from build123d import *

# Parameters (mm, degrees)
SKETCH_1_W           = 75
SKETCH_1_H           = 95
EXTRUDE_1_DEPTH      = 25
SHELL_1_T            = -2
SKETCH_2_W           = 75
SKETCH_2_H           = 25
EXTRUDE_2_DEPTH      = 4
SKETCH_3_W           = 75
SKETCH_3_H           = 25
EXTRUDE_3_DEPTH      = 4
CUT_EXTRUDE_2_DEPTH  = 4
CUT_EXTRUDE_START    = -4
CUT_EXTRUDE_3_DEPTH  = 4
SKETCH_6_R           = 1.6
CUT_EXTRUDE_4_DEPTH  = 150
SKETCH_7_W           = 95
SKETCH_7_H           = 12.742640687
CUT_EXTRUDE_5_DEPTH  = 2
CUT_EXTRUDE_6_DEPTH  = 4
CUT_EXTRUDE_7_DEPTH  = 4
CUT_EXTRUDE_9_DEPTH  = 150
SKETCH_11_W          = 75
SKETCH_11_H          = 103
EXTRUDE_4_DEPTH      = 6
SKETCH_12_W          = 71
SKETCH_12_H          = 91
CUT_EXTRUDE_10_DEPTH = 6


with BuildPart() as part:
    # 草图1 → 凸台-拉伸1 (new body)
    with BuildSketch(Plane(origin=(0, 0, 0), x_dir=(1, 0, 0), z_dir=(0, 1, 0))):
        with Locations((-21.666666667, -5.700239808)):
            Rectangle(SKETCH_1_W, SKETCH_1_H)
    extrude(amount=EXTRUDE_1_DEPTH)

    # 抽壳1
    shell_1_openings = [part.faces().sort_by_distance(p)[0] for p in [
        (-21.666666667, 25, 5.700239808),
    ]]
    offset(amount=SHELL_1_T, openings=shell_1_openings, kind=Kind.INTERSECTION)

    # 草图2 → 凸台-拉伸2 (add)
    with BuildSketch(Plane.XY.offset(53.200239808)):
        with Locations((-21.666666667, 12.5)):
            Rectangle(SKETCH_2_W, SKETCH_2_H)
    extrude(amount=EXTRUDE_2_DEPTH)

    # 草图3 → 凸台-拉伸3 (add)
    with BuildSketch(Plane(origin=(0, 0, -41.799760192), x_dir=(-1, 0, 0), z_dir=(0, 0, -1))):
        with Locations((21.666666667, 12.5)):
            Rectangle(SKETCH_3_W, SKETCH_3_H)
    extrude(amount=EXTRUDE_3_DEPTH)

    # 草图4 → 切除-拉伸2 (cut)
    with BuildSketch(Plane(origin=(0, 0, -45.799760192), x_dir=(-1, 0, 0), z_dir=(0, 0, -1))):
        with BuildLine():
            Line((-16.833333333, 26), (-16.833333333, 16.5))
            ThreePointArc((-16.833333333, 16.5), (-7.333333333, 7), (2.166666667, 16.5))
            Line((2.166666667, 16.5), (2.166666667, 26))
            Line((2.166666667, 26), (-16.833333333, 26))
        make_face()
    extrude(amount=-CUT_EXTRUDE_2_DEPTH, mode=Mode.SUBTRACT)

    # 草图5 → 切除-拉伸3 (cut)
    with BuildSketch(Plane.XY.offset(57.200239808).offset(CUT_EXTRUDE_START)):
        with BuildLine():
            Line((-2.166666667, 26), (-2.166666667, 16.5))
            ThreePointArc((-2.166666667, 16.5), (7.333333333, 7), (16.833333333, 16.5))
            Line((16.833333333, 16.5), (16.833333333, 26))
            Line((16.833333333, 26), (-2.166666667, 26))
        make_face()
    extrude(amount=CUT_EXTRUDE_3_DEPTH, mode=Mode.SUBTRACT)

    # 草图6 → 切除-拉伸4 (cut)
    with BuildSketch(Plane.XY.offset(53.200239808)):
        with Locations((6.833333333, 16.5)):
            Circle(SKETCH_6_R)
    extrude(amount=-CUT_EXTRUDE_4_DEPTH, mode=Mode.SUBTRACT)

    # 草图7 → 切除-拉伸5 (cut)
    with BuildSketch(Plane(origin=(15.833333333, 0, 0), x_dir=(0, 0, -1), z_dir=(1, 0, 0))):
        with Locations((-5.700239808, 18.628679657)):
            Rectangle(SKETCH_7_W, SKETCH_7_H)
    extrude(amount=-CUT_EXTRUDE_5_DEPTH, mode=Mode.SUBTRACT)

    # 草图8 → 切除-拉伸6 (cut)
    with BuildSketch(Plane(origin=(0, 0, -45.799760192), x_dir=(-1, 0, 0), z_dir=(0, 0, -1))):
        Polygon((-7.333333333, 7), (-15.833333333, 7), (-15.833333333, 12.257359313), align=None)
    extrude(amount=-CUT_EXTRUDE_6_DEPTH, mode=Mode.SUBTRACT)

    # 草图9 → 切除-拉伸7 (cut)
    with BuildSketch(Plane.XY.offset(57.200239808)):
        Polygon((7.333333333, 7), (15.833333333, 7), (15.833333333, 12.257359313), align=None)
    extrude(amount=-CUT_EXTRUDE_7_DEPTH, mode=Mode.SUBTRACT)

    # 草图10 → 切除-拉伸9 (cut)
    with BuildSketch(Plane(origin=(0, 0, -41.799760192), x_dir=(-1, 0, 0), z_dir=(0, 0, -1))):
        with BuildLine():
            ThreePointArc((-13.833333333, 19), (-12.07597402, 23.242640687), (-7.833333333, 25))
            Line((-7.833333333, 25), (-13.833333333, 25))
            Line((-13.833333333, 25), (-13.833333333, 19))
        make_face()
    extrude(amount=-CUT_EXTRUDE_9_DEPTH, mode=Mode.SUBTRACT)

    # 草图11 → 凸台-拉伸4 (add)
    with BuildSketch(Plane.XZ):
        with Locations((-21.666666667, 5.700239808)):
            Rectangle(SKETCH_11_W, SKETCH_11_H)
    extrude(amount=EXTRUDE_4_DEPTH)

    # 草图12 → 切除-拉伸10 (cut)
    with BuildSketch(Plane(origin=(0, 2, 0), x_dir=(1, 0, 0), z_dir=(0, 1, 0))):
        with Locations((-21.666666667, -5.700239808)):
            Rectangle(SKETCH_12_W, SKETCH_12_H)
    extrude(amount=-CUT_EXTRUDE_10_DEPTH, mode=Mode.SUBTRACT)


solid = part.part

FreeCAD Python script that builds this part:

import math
import FreeCAD as App
import Part
import Sketcher


def faces_at(feature, points):
    """Names of the faces that lie closest to the given points."""
    faces = feature.Shape.Faces
    near = lambda p: min(range(len(faces)), key=lambda i: faces[i].distToShape(Part.Vertex(*p))[0])
    return sorted({f"Face{near(p) + 1}" for p in points})


def add_polygon(sketch, points):
    """Adds a closed chain of lines whose ends are joined by coincident constraints."""
    first, n = sketch.GeometryCount, len(points)
    for a, b in zip(points, points[1:] + points[:1]):
        sketch.addGeometry(Part.LineSegment(App.Vector(*a, 0), App.Vector(*b, 0)), False)
    for i in range(n):
        sketch.addConstraint(Sketcher.Constraint("Coincident", first + i, 2, first + (i + 1) % n, 1))

doc = App.newDocument("Part")
body = doc.addObject("PartDesign::Body", "Body")

sketch1 = body.newObject("Sketcher::SketchObject", "Sketch")
sketch1.AttachmentSupport = (doc.getObject("XZ_Plane"), [""])
sketch1.MapMode = "FlatFace"
add_polygon(sketch1, [(-59, -42), (-59, 53), (16, 53), (16, -42)])
sketch1.addConstraint([
    Sketcher.Constraint("Vertical", 0),
    Sketcher.Constraint("Horizontal", 1),
    Sketcher.Constraint("Vertical", 2),
    Sketcher.Constraint("Horizontal", 3),
    Sketcher.Constraint("DistanceX", 1, 1, 1, 2, 75.0),
    Sketcher.Constraint("DistanceY", 0, 1, 0, 2, 95.0),
    Sketcher.Constraint("DistanceY", -1, 1, 0, 2, 53.20024),
    Sketcher.Constraint("DistanceX", 0, 2, -1, 1, 59.166667),
])
pad1 = body.newObject("PartDesign::Pad", "Pad")
pad1.Profile = sketch1
pad1.Length = 25
pad1.Reversed = True
doc.recompute()

thickness = body.newObject("PartDesign::Thickness", "Thickness")
thickness.Base = (pad1, faces_at(pad1, [(-21.667, 25, 5.7)]))
thickness.Value = 2
thickness.Reversed = True
thickness.Join = "Intersection"

sketch2 = body.newObject("Sketcher::SketchObject", "Sketch001")
sketch2.AttachmentSupport = (doc.getObject("XY_Plane"), [""])
sketch2.MapMode = "FlatFace"
sketch2.AttachmentOffset = App.Placement(App.Vector(0, 0, 53.20024), App.Rotation())
add_polygon(sketch2, [(-59, 25), (-59, 0), (16, 0), (16, 25)])
sketch2.addConstraint([
    Sketcher.Constraint("Vertical", 0),
    Sketcher.Constraint("Horizontal", 1),
    Sketcher.Constraint("Vertical", 2),
    Sketcher.Constraint("Horizontal", 3),
    Sketcher.Constraint("PointOnObject", 0, 2, -1),
    Sketcher.Constraint("DistanceX", 1, 1, 1, 2, 75.0),
    Sketcher.Constraint("DistanceY", 0, 2, 0, 1, 25.0),
    Sketcher.Constraint("DistanceX", 0, 2, -1, 1, 59.166667),
])
pad2 = body.newObject("PartDesign::Pad", "Pad001")
pad2.Profile = sketch2
pad2.Length = 4

sketch3 = body.newObject("Sketcher::SketchObject", "Sketch002")
sketch3.AttachmentSupport = (doc.getObject("XY_Plane"), [""])
sketch3.MapMode = "FlatFace"
sketch3.AttachmentOffset = App.Placement(App.Vector(0, 0, -41.79976), App.Rotation())
add_polygon(sketch3, [(16, 25), (16, 0), (-59, 0), (-59, 25)])
sketch3.addConstraint([
    Sketcher.Constraint("Vertical", 0),
    Sketcher.Constraint("Horizontal", 1),
    Sketcher.Constraint("Vertical", 2),
    Sketcher.Constraint("Horizontal", 3),
    Sketcher.Constraint("PointOnObject", 0, 2, -1),
    Sketcher.Constraint("DistanceX", 1, 2, 1, 1, 75.0),
    Sketcher.Constraint("DistanceY", 0, 2, 0, 1, 25.0),
    Sketcher.Constraint("DistanceX", -1, 1, 0, 2, 15.833333),
])
pad3 = body.newObject("PartDesign::Pad", "Pad002")
pad3.Profile = sketch3
pad3.Length = 4
pad3.Reversed = True

sketch4 = body.newObject("Sketcher::SketchObject", "Sketch003")
sketch4.AttachmentSupport = (doc.getObject("XY_Plane"), [""])
sketch4.MapMode = "FlatFace"
sketch4.AttachmentOffset = App.Placement(App.Vector(0, 0, -45.79976), App.Rotation())
sketch4.addGeometry([
    Part.LineSegment(App.Vector(17, 26, 0), App.Vector(17, 16, 0)),
    Part.ArcOfCircle(Part.Circle(App.Vector(7, 16, 0), App.Vector(0, 0, 1), 10), math.radians(180), math.radians(360)),
    Part.LineSegment(App.Vector(-2, 16, 0), App.Vector(-2, 26, 0)),
    Part.LineSegment(App.Vector(-2, 26, 0), App.Vector(17, 26, 0)),
], False)
sketch4.addConstraint([
    Sketcher.Constraint("Tangent", 0, 2, 1, 2),
    Sketcher.Constraint("Tangent", 1, 1, 2, 1),
    Sketcher.Constraint("Coincident", 2, 2, 3, 1),
    Sketcher.Constraint("Coincident", 3, 2, 0, 1),
    Sketcher.Constraint("Vertical", 0),
    Sketcher.Constraint("Vertical", 2),
    Sketcher.Constraint("Horizontal", 3),
    Sketcher.Constraint("Radius", 1, 9.5),
    Sketcher.Constraint("DistanceY", 0, 2, 0, 1, 9.5),
    Sketcher.Constraint("DistanceY", -1, 1, 2, 2, 26.0),
    Sketcher.Constraint("DistanceX", -1, 1, 1, 3, 7.333333),
])
pocket1 = body.newObject("PartDesign::Pocket", "Pocket")
pocket1.Profile = sketch4
pocket1.Length = 4
pocket1.Reversed = True

sketch5 = body.newObject("Sketcher::SketchObject", "Sketch004")
sketch5.AttachmentSupport = (doc.getObject("XY_Plane"), [""])
sketch5.MapMode = "FlatFace"
sketch5.AttachmentOffset = App.Placement(App.Vector(0, 0, 53.20024), App.Rotation())
sketch5.addGeometry([
    Part.LineSegment(App.Vector(-2, 26, 0), App.Vector(-2, 16, 0)),
    Part.ArcOfCircle(Part.Circle(App.Vector(7, 16, 0), App.Vector(0, 0, 1), 10), math.radians(180), math.radians(360)),
    Part.LineSegment(App.Vector(17, 16, 0), App.Vector(17, 26, 0)),
    Part.LineSegment(App.Vector(17, 26, 0), App.Vector(-2, 26, 0)),
], False)
sketch5.addConstraint([
    Sketcher.Constraint("Tangent", 0, 2, 1, 1),
    Sketcher.Constraint("Tangent", 1, 2, 2, 1),
    Sketcher.Constraint("Coincident", 2, 2, 3, 1),
    Sketcher.Constraint("Coincident", 3, 2, 0, 1),
    Sketcher.Constraint("Vertical", 0),
    Sketcher.Constraint("Vertical", 2),
    Sketcher.Constraint("Horizontal", 3),
    Sketcher.Constraint("Radius", 1, 9.5),
    Sketcher.Constraint("DistanceY", 0, 2, 0, 1, 9.5),
    Sketcher.Constraint("DistanceY", -1, 1, 2, 2, 26.0),
    Sketcher.Constraint("DistanceX", -1, 1, 1, 3, 7.333333),
])
pocket2 = body.newObject("PartDesign::Pocket", "Pocket001")
pocket2.Profile = sketch5
pocket2.Length = 4
pocket2.Reversed = True

sketch6 = body.newObject("Sketcher::SketchObject", "Sketch005")
sketch6.AttachmentSupport = (doc.getObject("XY_Plane"), [""])
sketch6.MapMode = "FlatFace"
sketch6.AttachmentOffset = App.Placement(App.Vector(0, 0, 53.20024), App.Rotation())
sketch6.addGeometry(Part.Circle(App.Vector(6.8, 16.5, 0), App.Vector(0, 0, 1), 1.6), False)
sketch6.addConstraint([
    Sketcher.Constraint("Diameter", 0, 3.2),
    Sketcher.Constraint("DistanceY", -1, 1, 0, 3, 16.5),
    Sketcher.Constraint("DistanceX", -1, 1, 0, 3, 6.833333),
])
pocket3 = body.newObject("PartDesign::Pocket", "Pocket002")
pocket3.Profile = sketch6
pocket3.Length = 150

sketch7 = body.newObject("Sketcher::SketchObject", "Sketch006")
sketch7.AttachmentSupport = (doc.getObject("YZ_Plane"), [""])
sketch7.MapMode = "FlatFace"
sketch7.AttachmentOffset = App.Placement(App.Vector(0, 0, 15.833333), App.Rotation())
add_polygon(sketch7, [(25, 53), (12, 53), (12, -42), (25, -42)])
sketch7.addConstraint([
    Sketcher.Constraint("Horizontal", 0),
    Sketcher.Constraint("Vertical", 1),
    Sketcher.Constraint("Horizontal", 2),
    Sketcher.Constraint("Vertical", 3),
    Sketcher.Constraint("DistanceY", 1, 2, 1, 1, 95.0),
    Sketcher.Constraint("DistanceX", -1, 1, 2, 2, 25.0),
    Sketcher.Constraint("DistanceX", 0, 2, 0, 1, 12.742641),
    Sketcher.Constraint("DistanceY", -1, 1, 0, 2, 53.20024),
])
pocket4 = body.newObject("PartDesign::Pocket", "Pocket003")
pocket4.Profile = sketch7
pocket4.Length = 2

sketch8 = body.newObject("Sketcher::SketchObject", "Sketch007")
sketch8.AttachmentSupport = (doc.getObject("XY_Plane"), [""])
sketch8.MapMode = "FlatFace"
sketch8.AttachmentOffset = App.Placement(App.Vector(0, 0, -45.79976), App.Rotation())
add_polygon(sketch8, [(16, 7), (7, 7), (16, 12)])
sketch8.addConstraint([
    Sketcher.Constraint("Horizontal", 0),
    Sketcher.Constraint("Vertical", 2),
    Sketcher.Constraint("DistanceX", 0, 2, 0, 1, 8.5),
    Sketcher.Constraint("DistanceY", -1, 1, 0, 2, 7.0),
    Sketcher.Constraint("DistanceY", 2, 2, 2, 1, 5.257359),
    Sketcher.Constraint("DistanceX", -1, 1, 0, 2, 7.333333),
])
pocket5 = body.newObject("PartDesign::Pocket", "Pocket004")
pocket5.Profile = sketch8
pocket5.Length = 4
pocket5.Reversed = True

sketch9 = body.newObject("Sketcher::SketchObject", "Sketch008")
sketch9.AttachmentSupport = (doc.getObject("XY_Plane"), [""])
sketch9.MapMode = "FlatFace"
sketch9.AttachmentOffset = App.Placement(App.Vector(0, 0, 57.20024), App.Rotation())
add_polygon(sketch9, [(7, 7), (16, 7), (16, 12)])
sketch9.addConstraint([
    Sketcher.Constraint("Horizontal", 0),
    Sketcher.Constraint("Vertical", 1),
    Sketcher.Constraint("DistanceX", 0, 1, 0, 2, 8.5),
    Sketcher.Constraint("DistanceY", -1, 1, 0, 2, 7.0),
    Sketcher.Constraint("DistanceY", 1, 1, 1, 2, 5.257359),
    Sketcher.Constraint("DistanceX", -1, 1, 0, 2, 15.833333),
])
pocket6 = body.newObject("PartDesign::Pocket", "Pocket005")
pocket6.Profile = sketch9
pocket6.Length = 4

sketch10 = body.newObject("Sketcher::SketchObject", "Sketch009")
sketch10.AttachmentSupport = (doc.getObject("XY_Plane"), [""])
sketch10.MapMode = "FlatFace"
sketch10.AttachmentOffset = App.Placement(App.Vector(0, 0, -41.79976), App.Rotation())
sketch10.addGeometry([
    Part.ArcOfCircle(Part.Circle(App.Vector(8, 19, 0), App.Vector(0, 0, 1), 6), math.radians(0), math.radians(90)),
    Part.LineSegment(App.Vector(8, 25, 0), App.Vector(14, 25, 0)),
    Part.LineSegment(App.Vector(14, 25, 0), App.Vector(14, 19, 0)),
], False)
sketch10.addConstraint([
    Sketcher.Constraint("Tangent", 0, 2, 1, 1),
    Sketcher.Constraint("Coincident", 1, 2, 2, 1),
    Sketcher.Constraint("Tangent", 2, 2, 0, 1),
    Sketcher.Constraint("Horizontal", 1),
    Sketcher.Constraint("Vertical", 2),
    Sketcher.Constraint("Radius", 0, 6.0),
    Sketcher.Constraint("DistanceY", -1, 1, 0, 3, 19.0),
    Sketcher.Constraint("DistanceX", -1, 1, 0, 3, 7.833333),
])
pocket7 = body.newObject("PartDesign::Pocket", "Pocket006")
pocket7.Profile = sketch10
pocket7.Length = 150
pocket7.Reversed = True

sketch11 = body.newObject("Sketcher::SketchObject", "Sketch010")
sketch11.AttachmentSupport = (doc.getObject("XZ_Plane"), [""])
sketch11.MapMode = "FlatFace"
add_polygon(sketch11, [(-59, 57), (-59, -46), (16, -46), (16, 57)])
sketch11.addConstraint([
    Sketcher.Constraint("Vertical", 0),
    Sketcher.Constraint("Horizontal", 1),
    Sketcher.Constraint("Vertical", 2),
    Sketcher.Constraint("Horizontal", 3),
    Sketcher.Constraint("DistanceX", 1, 1, 1, 2, 75.0),
    Sketcher.Constraint("DistanceY", 0, 2, 0, 1, 103.0),
    Sketcher.Constraint("DistanceY", 0, 2, -1, 1, 45.79976),
    Sketcher.Constraint("DistanceX", 0, 2, -1, 1, 59.166667),
])
pad4 = body.newObject("PartDesign::Pad", "Pad003")
pad4.Profile = sketch11
pad4.Length = 6

sketch12 = body.newObject("Sketcher::SketchObject", "Sketch011")
sketch12.AttachmentSupport = (doc.getObject("XZ_Plane"), [""])
sketch12.MapMode = "FlatFace"
sketch12.AttachmentOffset = App.Placement(App.Vector(0, 0, -2), App.Rotation())
add_polygon(sketch12, [(-57, -40), (-57, 51), (14, 51), (14, -40)])
sketch12.addConstraint([
    Sketcher.Constraint("Vertical", 0),
    Sketcher.Constraint("Horizontal", 1),
    Sketcher.Constraint("Vertical", 2),
    Sketcher.Constraint("Horizontal", 3),
    Sketcher.Constraint("DistanceX", 1, 1, 1, 2, 71.0),
    Sketcher.Constraint("DistanceY", 0, 1, 0, 2, 91.0),
    Sketcher.Constraint("DistanceY", -1, 1, 0, 2, 51.20024),
    Sketcher.Constraint("DistanceX", 0, 2, -1, 1, 57.166667),
])
pocket8 = body.newObject("PartDesign::Pocket", "Pocket007")
pocket8.Profile = sketch12
pocket8.Length = 6
pocket8.Reversed = True

doc.recompute()
